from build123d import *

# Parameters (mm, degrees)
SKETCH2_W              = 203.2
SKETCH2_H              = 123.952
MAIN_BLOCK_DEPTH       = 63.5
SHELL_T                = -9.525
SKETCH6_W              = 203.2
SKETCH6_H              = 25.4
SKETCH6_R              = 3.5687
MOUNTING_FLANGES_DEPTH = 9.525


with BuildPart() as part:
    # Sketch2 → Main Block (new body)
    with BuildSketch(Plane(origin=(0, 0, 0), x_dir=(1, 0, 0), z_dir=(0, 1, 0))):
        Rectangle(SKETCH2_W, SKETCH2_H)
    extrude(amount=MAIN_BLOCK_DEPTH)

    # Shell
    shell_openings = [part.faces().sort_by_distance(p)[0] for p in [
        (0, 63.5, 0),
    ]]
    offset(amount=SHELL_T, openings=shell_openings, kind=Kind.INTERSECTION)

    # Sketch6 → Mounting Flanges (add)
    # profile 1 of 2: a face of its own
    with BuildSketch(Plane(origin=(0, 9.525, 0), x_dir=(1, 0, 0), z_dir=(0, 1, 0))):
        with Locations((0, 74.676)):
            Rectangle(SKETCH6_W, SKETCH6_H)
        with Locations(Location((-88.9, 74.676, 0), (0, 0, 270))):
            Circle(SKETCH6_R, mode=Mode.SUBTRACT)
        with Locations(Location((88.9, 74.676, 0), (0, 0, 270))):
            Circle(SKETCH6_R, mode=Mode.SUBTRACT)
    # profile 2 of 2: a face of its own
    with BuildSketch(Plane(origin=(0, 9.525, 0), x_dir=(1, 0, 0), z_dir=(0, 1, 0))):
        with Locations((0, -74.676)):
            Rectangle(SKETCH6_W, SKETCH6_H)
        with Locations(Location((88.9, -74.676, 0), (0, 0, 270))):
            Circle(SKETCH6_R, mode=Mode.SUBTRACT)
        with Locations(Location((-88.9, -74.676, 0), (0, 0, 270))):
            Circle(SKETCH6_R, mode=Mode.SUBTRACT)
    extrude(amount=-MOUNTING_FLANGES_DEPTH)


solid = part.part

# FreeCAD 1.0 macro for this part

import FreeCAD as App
import Part
import Sketcher

V = App.Vector
Q = App.Units.Quantity


def faces_at(feature, points):
    """Names of the faces that lie closest to the given points."""
    faces = feature.Shape.Faces
    near = lambda p: min(range(len(faces)), key=lambda i: faces[i].distToShape(Part.Vertex(*p))[0])
    return sorted({f"Face{near(p) + 1}" for p in points})

doc = App.newDocument("Part")
params = doc.addObject("Spreadsheet::Sheet", "Params")
for row, (alias, value) in enumerate([
    ("sketch1_width", "8 in"),
    ("sketch1_height", "4.88 in"),
    ("pad1_length", "2.5 in"),
    ("thickness_wall", "0.375 in"),
    ("sketch2_width", "8 in"),
    ("sketch2_height", "1 in"),
    ("sketch2_diameter", "0.281 in"),
    ("pad2_length", "0.375 in"),
], start=1):
    params.set(f"A{row}", alias)
    params.set(f"B{row}", "=" + value)
    params.setAlias(f"B{row}", alias)

body = doc.addObject("PartDesign::Body", "Body")

sketch1 = body.newObject("Sketcher::SketchObject", "Sketch")
sketch1.AttachmentSupport = (doc.getObject("XZ_Plane"), [""])
sketch1.MapMode = "FlatFace"
sketch1.addGeometry(Part.LineSegment(V(-102, -62, 0), V(-102, 62, 0)), False)
sketch1.addGeometry(Part.LineSegment(V(-102, 62, 0), V(102, 62, 0)), False)
sketch1.addGeometry(Part.LineSegment(V(102, 62, 0), V(102, -62, 0)), False)
sketch1.addGeometry(Part.LineSegment(V(102, -62, 0), V(-102, -62, 0)), False)
sketch1.addConstraint(Sketcher.Constraint("Coincident", 0, 2, 1, 1))
sketch1.addConstraint(Sketcher.Constraint("Coincident", 1, 2, 2, 1))
sketch1.addConstraint(Sketcher.Constraint("Coincident", 2, 2, 3, 1))
sketch1.addConstraint(Sketcher.Constraint("Coincident", 3, 2, 0, 1))
sketch1.addConstraint(Sketcher.Constraint("Vertical", 0))
sketch1.addConstraint(Sketcher.Constraint("Horizontal", 1))
sketch1.addConstraint(Sketcher.Constraint("Vertical", 2))
sketch1.addConstraint(Sketcher.Constraint("Horizontal", 3))
sketch1.addConstraint(Sketcher.Constraint("Symmetric", 0, 2, 2, 2, -1, 1))
sketch1.addConstraint(Sketcher.Constraint("DistanceX", 1, 1, 1, 2, Q("8 in")))
sketch1.addConstraint(Sketcher.Constraint("DistanceY", 0, 1, 0, 2, Q("4.88 in")))
sketch1.setExpression("Constraints[9]", "Params.sketch1_width")
sketch1.setExpression("Constraints[10]", "Params.sketch1_height")
pad1 = body.newObject("PartDesign::Pad", "Pad")
pad1.Profile = sketch1
pad1.setExpression("Length", "Params.pad1_length")
pad1.Reversed = True
doc.recompute()

thickness = body.newObject("PartDesign::Thickness", "Thickness")
thickness.Base = (pad1, faces_at(pad1, [(0, 63.5, 0)]))
thickness.setExpression("Value", "Params.thickness_wall")
thickness.Reversed = True
thickness.Join = "Intersection"

sketch2 = body.newObject("Sketcher::SketchObject", "Sketch001")
sketch2.AttachmentSupport = (doc.getObject("XZ_Plane"), [""])
sketch2.MapMode = "FlatFace"
sketch2.AttachmentOffset = App.Placement(V(0, 0, -0.375 * 25.4), App.Rotation())
sketch2.addGeometry(Part.LineSegment(V(-101.6, -87.4, 0), V(-101.6, -62, 0)), False)
sketch2.addGeometry(Part.LineSegment(V(-101.6, -62, 0), V(101.6, -62, 0)), False)
sketch2.addGeometry(Part.LineSegment(V(101.6, -62, 0), V(101.6, -87.4, 0)), False)
sketch2.addGeometry(Part.LineSegment(V(101.6, -87.4, 0), V(-101.6, -87.4, 0)), False)
sketch2.addGeometry(Part.Circle(V(-88.9, -74.7, 0), V(0, 0, 1), 3.6), False)
sketch2.addGeometry(Part.Circle(V(88.9, -74.7, 0), V(0, 0, 1), 3.6), False)
sketch2.addGeometry(Part.LineSegment(V(-101.6, 62, 0), V(-101.6, 87.4, 0)), False)
sketch2.addGeometry(Part.LineSegment(V(-101.6, 87.4, 0), V(101.6, 87.4, 0)), False)
sketch2.addGeometry(Part.LineSegment(V(101.6, 87.4, 0), V(101.6, 62, 0)), False)
sketch2.addGeometry(Part.LineSegment(V(101.6, 62, 0), V(-101.6, 62, 0)), False)
sketch2.addGeometry(Part.Circle(V(-88.9, 74.7, 0), V(0, 0, 1), 3.6), False)
sketch2.addGeometry(Part.Circle(V(88.9, 74.7, 0), V(0, 0, 1), 3.6), False)
sketch2.addConstraint(Sketcher.Constraint("Coincident", 0, 2, 1, 1))
sketch2.addConstraint(Sketcher.Constraint("Coincident", 1, 2, 2, 1))
sketch2.addConstraint(Sketcher.Constraint("Coincident", 2, 2, 3, 1))
sketch2.addConstraint(Sketcher.Constraint("Coincident", 3, 2, 0, 1))
sketch2.addConstraint(Sketcher.Constraint("Coincident", 6, 2, 7, 1))
sketch2.addConstraint(Sketcher.Constraint("Coincident", 7, 2, 8, 1))
sketch2.addConstraint(Sketcher.Constraint("Coincident", 8, 2, 9, 1))
sketch2.addConstraint(Sketcher.Constraint("Coincident", 9, 2, 6, 1))
sketch2.addConstraint(Sketcher.Constraint("Vertical", 0))
sketch2.addConstraint(Sketcher.Constraint("Horizontal", 1))
sketch2.addConstraint(Sketcher.Constraint("Vertical", 2))
sketch2.addConstraint(Sketcher.Constraint("Horizontal", 3))
sketch2.addConstraint(Sketcher.Constraint("Vertical", 6))
sketch2.addConstraint(Sketcher.Constraint("Horizontal", 7))
sketch2.addConstraint(Sketcher.Constraint("Vertical", 8))
sketch2.addConstraint(Sketcher.Constraint("Horizontal", 9))
sketch2.addConstraint(Sketcher.Constraint("Equal", 4, 5))
sketch2.addConstraint(Sketcher.Constraint("Equal", 5, 10))
sketch2.addConstraint(Sketcher.Constraint("Equal", 10, 11))
sketch2.addConstraint(Sketcher.Constraint("Symmetric", 5, 3, 10, 3, -1, 1))
sketch2.addConstraint(Sketcher.Constraint("Symmetric", 4, 3, 11, 3, -1, 1))
sketch2.addConstraint(Sketcher.Constraint("Symmetric", 2, 2, 6, 2, -1, 1))
sketch2.addConstraint(Sketcher.Constraint("Symmetric", 0, 2, 8, 2, -1, 1))
sketch2.addConstraint(Sketcher.Constraint("Symmetric", 4, 3, 5, 3, -2))
sketch2.addConstraint(Sketcher.Constraint("Vertical", 3, 2, 6, 2))
sketch2.addConstraint(Sketcher.Constraint("DistanceX", 1, 1, 1, 2, Q("8 in")))
sketch2.addConstraint(Sketcher.Constraint("DistanceY", 0, 1, 0, 2, Q("1 in")))
sketch2.addConstraint(Sketcher.Constraint("Diameter", 4, Q("0.281 in")))
sketch2.addConstraint(Sketcher.Constraint("DistanceX", 4, 3, 5, 3, Q("7 in")))
sketch2.addConstraint(Sketcher.Constraint("DistanceY", 4, 3, 0, 2, Q("0.5 in")))
sketch2.addConstraint(Sketcher.Constraint("DistanceY", 4, 3, -1, 1, Q("2.94 in")))
sketch2.setExpression("Constraints[25]", "Params.sketch2_width")
sketch2.setExpression("Constraints[26]", "Params.sketch2_height")
sketch2.setExpression("Constraints[27]", "Params.sketch2_diameter")
pad2 = body.newObject("PartDesign::Pad", "Pad001")
pad2.Profile = sketch2
pad2.setExpression("Length", "Params.pad2_length")

doc.recompute()
